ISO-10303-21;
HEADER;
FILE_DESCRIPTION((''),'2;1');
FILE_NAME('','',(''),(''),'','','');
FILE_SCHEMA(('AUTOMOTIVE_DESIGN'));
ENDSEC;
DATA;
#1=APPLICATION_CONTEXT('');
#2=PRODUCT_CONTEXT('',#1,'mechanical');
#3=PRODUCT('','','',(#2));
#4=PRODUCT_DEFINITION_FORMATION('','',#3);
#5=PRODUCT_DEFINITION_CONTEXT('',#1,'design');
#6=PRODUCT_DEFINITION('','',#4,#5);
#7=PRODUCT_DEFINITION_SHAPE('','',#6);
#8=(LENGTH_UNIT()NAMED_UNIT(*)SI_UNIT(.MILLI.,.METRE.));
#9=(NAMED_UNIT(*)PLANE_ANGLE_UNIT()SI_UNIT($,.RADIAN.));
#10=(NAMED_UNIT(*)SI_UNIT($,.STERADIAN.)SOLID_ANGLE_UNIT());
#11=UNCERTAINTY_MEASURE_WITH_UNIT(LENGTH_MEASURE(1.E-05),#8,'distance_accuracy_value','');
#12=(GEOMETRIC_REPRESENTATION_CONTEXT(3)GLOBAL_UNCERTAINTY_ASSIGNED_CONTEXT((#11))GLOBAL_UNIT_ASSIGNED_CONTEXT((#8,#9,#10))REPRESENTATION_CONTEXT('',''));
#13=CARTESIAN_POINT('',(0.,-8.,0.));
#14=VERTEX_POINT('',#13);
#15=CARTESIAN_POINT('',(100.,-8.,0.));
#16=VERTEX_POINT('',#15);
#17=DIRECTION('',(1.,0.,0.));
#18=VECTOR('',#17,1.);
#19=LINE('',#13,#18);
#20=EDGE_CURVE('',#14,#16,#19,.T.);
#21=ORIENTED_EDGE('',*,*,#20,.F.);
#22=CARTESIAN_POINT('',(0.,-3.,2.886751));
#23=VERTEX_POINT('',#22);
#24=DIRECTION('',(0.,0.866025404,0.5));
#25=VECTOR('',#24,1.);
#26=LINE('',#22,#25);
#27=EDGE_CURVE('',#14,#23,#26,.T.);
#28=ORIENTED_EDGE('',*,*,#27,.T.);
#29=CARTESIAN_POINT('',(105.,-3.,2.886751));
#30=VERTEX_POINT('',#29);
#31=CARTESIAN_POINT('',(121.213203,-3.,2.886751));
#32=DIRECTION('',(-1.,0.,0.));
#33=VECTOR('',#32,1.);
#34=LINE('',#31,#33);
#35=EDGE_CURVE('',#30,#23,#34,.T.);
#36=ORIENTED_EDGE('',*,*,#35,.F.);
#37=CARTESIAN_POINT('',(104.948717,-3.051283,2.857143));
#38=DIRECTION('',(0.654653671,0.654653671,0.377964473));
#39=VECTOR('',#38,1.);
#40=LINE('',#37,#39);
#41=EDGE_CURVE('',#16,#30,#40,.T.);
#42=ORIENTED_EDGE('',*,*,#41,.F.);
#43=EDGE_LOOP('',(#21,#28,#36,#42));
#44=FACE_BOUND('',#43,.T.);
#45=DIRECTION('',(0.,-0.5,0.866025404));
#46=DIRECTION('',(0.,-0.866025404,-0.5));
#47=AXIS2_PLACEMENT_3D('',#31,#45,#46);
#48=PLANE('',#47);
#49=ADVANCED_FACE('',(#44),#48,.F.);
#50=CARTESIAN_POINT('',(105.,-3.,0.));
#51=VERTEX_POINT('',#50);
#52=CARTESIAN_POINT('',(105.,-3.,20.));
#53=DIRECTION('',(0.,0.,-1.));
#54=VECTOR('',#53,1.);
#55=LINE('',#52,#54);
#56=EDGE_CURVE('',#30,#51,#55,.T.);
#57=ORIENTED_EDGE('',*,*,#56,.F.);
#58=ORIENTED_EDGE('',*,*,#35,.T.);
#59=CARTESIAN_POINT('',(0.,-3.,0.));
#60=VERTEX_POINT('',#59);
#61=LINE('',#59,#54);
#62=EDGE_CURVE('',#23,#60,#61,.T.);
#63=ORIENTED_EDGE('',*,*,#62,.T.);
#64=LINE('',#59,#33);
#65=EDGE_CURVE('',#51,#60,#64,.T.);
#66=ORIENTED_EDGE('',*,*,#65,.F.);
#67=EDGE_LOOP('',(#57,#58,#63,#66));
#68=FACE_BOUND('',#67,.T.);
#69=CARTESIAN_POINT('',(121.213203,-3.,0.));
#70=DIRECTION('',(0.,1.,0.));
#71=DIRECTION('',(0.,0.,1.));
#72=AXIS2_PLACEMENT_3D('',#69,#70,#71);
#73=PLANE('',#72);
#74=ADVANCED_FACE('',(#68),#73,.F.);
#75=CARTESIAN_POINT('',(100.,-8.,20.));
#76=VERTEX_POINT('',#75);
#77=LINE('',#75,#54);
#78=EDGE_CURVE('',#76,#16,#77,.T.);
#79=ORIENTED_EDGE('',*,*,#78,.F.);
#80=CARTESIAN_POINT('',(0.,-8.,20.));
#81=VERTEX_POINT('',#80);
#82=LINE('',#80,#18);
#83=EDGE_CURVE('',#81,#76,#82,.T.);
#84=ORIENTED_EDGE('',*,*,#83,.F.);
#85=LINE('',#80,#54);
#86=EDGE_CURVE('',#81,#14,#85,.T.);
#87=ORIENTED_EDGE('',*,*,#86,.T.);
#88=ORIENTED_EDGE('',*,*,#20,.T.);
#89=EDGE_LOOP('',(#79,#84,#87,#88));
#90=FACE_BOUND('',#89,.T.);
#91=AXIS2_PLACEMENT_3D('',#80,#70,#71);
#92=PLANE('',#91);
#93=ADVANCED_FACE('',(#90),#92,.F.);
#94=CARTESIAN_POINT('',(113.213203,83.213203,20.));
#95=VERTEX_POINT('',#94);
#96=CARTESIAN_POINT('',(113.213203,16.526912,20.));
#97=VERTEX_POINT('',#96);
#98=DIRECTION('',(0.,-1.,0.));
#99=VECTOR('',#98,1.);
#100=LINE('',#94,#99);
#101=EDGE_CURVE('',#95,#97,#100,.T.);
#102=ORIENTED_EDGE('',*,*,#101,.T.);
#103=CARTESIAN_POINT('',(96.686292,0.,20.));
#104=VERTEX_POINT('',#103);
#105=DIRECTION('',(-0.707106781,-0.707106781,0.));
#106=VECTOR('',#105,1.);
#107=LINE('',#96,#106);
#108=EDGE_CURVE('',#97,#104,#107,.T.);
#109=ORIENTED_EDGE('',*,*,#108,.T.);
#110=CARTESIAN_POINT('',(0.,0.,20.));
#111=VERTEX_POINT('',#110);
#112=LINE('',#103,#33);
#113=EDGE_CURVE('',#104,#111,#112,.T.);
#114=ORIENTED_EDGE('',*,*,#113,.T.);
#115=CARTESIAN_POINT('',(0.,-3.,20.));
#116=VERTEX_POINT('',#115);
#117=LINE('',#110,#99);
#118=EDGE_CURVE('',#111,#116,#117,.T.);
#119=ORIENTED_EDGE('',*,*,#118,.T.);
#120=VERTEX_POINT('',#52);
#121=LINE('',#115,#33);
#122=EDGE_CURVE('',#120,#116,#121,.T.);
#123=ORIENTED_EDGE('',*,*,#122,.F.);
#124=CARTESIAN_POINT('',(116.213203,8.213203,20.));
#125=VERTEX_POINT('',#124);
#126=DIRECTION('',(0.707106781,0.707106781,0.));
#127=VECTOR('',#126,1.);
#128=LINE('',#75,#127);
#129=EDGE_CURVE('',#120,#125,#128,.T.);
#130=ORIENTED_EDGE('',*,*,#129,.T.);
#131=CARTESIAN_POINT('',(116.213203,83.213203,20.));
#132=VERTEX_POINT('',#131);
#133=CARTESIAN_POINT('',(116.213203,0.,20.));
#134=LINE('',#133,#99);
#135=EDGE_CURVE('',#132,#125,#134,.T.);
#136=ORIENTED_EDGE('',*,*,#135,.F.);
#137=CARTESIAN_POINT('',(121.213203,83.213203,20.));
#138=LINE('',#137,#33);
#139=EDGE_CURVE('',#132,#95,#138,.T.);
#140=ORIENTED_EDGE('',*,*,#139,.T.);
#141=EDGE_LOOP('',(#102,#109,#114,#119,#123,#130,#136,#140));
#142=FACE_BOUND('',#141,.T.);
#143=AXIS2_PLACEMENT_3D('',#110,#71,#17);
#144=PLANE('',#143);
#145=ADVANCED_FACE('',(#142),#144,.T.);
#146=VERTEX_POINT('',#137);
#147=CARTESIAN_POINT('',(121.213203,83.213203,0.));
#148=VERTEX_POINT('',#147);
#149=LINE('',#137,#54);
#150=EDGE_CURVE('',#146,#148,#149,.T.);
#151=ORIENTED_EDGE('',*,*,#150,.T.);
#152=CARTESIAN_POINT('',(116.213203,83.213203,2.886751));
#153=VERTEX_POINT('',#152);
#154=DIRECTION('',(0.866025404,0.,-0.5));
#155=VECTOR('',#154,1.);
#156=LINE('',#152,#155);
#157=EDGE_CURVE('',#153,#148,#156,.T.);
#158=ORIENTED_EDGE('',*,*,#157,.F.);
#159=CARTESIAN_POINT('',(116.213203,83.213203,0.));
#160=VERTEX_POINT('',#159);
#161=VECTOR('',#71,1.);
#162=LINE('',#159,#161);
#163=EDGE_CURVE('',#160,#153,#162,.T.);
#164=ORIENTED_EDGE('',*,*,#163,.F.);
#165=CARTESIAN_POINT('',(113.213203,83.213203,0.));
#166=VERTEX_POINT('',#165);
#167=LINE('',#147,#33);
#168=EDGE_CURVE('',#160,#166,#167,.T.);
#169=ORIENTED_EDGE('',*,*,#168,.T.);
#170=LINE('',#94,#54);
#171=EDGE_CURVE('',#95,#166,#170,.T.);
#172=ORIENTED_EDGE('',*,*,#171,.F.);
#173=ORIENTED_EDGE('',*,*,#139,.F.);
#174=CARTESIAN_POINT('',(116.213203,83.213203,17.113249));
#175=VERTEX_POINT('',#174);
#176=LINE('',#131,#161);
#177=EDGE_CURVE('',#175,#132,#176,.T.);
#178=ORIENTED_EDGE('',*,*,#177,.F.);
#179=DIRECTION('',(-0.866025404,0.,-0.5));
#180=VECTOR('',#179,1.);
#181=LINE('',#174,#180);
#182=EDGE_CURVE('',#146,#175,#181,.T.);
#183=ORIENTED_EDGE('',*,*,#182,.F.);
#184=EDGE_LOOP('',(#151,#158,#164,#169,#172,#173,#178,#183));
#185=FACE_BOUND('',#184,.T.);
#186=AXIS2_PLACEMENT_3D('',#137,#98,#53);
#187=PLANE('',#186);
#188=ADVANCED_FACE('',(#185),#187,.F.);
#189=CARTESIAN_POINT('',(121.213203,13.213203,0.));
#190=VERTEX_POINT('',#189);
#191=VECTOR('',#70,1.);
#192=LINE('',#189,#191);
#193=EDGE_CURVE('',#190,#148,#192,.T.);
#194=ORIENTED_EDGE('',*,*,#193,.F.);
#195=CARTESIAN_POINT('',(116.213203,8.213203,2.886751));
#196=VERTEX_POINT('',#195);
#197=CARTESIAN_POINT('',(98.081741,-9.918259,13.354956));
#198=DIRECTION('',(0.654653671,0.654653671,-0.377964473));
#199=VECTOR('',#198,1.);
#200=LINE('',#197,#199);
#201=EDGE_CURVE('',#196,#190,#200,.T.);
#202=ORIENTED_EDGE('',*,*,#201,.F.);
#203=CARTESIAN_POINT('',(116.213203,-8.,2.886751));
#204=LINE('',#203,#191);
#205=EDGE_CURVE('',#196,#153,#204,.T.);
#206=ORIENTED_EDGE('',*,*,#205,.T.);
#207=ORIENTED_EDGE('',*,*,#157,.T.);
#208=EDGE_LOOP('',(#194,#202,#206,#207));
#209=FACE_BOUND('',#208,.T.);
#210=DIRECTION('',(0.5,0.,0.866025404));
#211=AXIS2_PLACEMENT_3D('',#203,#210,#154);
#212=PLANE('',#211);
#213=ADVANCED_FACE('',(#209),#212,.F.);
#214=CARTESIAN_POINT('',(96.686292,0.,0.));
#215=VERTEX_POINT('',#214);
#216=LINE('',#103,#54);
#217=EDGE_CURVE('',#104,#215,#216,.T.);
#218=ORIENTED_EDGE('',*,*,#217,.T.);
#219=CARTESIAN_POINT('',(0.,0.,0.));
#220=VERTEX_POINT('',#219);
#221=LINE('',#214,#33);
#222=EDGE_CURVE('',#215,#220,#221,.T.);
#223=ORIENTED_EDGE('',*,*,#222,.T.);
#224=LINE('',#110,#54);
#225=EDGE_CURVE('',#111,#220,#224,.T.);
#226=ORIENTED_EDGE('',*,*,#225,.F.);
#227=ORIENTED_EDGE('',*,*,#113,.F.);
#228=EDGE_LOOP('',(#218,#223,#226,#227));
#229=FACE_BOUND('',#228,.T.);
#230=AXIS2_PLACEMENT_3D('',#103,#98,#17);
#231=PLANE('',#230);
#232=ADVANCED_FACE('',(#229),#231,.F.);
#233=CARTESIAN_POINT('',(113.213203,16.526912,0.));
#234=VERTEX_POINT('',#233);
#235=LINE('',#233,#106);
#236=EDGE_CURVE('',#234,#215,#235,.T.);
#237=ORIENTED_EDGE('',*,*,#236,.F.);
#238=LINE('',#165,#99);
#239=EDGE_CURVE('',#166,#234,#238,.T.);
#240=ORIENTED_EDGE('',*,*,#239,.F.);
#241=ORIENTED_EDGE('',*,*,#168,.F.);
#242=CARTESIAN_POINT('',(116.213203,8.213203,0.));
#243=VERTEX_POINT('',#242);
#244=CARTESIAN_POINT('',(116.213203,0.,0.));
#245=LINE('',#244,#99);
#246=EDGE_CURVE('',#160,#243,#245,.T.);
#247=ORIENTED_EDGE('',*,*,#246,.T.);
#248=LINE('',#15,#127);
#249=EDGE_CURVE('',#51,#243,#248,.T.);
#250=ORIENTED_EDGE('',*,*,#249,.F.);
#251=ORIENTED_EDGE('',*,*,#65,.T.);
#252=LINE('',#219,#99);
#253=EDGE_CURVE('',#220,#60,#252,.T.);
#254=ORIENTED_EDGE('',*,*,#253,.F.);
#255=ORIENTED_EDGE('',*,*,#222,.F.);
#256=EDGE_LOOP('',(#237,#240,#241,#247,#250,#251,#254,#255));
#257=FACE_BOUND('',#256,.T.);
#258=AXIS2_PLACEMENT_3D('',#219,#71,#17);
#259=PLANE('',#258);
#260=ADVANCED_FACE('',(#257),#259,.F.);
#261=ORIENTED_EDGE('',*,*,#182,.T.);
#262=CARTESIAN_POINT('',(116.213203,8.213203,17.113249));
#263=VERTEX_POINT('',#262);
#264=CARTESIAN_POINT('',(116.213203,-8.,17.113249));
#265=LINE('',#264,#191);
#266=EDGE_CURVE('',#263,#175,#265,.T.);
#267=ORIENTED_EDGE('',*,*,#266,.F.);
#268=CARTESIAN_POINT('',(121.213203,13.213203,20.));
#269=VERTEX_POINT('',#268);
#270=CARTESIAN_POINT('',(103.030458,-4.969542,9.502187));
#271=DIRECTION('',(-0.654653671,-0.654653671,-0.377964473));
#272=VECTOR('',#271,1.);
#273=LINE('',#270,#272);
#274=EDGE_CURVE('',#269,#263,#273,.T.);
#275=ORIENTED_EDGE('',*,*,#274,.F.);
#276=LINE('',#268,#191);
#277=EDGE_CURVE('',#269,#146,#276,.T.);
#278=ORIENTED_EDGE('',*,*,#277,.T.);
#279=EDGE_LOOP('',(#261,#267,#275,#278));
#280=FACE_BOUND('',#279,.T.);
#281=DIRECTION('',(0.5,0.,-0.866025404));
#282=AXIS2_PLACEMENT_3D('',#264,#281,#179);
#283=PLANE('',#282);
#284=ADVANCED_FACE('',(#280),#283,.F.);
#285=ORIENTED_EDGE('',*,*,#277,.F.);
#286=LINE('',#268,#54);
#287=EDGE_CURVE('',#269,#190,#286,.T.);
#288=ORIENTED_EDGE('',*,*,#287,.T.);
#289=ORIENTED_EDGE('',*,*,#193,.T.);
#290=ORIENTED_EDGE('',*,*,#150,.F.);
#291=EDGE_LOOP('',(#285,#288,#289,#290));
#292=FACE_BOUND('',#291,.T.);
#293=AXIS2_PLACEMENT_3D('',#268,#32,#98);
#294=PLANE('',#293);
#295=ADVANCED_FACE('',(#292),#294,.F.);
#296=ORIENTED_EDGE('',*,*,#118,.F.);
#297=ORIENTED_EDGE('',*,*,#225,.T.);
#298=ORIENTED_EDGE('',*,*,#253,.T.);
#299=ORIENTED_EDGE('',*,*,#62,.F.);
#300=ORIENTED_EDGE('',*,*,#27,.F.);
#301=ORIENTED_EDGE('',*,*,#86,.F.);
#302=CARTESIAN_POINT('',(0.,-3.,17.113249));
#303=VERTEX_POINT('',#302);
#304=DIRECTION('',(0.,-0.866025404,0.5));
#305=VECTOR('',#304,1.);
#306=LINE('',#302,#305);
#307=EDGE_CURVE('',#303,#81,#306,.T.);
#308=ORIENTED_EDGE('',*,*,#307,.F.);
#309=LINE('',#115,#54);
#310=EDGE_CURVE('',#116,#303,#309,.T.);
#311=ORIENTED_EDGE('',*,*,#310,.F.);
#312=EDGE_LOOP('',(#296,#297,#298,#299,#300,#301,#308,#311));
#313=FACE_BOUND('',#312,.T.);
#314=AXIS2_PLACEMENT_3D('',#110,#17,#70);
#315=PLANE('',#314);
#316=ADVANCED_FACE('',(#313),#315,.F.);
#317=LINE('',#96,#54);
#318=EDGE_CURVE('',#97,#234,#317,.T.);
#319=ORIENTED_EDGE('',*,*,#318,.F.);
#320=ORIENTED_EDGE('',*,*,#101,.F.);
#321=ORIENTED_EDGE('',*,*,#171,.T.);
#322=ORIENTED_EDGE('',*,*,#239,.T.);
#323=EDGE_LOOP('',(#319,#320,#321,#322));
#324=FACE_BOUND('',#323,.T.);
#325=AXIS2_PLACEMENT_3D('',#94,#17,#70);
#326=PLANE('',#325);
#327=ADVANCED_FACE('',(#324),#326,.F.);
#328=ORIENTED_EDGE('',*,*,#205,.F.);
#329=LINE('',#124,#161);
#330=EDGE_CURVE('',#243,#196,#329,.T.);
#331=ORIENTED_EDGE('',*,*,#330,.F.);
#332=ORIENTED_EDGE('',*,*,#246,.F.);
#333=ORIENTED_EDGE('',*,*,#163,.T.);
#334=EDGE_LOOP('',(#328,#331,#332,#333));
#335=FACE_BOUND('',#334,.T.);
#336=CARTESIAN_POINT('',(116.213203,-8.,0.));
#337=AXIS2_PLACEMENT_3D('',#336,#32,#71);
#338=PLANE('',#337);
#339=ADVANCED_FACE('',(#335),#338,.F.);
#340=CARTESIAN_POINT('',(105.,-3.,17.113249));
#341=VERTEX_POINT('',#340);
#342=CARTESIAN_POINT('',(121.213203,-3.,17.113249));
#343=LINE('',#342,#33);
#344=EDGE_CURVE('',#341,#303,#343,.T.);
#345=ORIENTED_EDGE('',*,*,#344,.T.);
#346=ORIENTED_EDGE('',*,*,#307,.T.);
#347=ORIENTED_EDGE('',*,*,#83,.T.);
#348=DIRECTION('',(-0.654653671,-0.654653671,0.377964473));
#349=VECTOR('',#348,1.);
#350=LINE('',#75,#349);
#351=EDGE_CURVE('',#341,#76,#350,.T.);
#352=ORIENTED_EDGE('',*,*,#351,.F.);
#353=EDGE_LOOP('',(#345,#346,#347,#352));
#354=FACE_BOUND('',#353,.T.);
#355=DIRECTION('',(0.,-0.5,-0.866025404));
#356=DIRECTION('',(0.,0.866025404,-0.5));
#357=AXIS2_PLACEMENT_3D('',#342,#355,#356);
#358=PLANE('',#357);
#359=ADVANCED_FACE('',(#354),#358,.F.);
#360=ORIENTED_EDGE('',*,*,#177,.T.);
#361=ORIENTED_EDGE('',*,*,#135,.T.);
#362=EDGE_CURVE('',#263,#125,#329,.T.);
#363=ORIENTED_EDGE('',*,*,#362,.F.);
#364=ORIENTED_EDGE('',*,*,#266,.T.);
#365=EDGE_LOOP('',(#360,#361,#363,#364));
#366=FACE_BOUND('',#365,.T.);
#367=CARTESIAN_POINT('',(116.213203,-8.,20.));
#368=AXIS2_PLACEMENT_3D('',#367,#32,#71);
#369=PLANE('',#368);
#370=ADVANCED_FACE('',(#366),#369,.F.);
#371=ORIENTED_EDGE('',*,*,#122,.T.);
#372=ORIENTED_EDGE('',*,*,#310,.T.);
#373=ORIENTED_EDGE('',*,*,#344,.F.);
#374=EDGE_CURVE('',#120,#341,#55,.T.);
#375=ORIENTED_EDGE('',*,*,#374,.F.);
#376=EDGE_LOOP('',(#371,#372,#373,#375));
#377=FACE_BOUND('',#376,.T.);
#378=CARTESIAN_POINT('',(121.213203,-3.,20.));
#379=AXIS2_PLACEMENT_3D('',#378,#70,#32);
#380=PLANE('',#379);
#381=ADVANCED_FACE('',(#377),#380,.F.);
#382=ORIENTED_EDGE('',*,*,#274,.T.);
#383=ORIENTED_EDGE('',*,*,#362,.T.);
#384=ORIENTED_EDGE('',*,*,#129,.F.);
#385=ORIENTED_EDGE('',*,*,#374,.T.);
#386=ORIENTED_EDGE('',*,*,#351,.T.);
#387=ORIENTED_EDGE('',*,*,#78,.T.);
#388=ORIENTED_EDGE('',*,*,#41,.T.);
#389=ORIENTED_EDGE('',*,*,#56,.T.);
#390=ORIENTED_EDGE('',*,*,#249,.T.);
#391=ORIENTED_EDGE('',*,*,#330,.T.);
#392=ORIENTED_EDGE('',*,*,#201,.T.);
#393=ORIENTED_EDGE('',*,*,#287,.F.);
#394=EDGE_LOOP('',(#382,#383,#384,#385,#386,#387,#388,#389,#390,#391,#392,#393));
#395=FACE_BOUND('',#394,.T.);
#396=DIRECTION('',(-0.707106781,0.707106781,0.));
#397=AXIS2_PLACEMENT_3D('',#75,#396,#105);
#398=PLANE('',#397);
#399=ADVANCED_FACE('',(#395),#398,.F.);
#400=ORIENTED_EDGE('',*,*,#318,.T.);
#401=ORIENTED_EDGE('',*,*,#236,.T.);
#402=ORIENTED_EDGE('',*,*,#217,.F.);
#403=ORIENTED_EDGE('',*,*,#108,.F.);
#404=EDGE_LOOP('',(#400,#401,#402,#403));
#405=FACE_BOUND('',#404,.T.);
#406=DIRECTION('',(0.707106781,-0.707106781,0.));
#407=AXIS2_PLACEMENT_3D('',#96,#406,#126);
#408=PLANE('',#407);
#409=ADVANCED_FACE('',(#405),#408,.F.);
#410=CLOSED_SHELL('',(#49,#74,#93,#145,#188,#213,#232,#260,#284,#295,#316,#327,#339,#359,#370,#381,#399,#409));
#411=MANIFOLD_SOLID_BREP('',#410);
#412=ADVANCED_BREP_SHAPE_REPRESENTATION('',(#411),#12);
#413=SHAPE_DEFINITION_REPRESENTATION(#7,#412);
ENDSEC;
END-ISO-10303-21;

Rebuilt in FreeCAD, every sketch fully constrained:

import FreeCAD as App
import Part
import Sketcher
Q = App.Units.Quantity


def add_polygon(sketch, points):
    """Adds a closed chain of lines whose ends are joined by coincident constraints."""
    first, n = sketch.GeometryCount, len(points)
    for a, b in zip(points, points[1:] + points[:1]):
        sketch.addGeometry(Part.LineSegment(App.Vector(*a, 0), App.Vector(*b, 0)), False)
    for i in range(n):
        sketch.addConstraint(Sketcher.Constraint("Coincident", first + i, 2, first + (i + 1) % n, 1))

doc = App.newDocument("Part")
body = doc.addObject("PartDesign::Body", "Body")

# Sketch on XY plane
sketch1 = doc.addObject("Sketcher::SketchObject", "Sketch")
body.addObject(sketch1)
sketch1.AttachmentSupport = (doc.XY_Plane, [""])
sketch1.MapMode = "FlatFace"
add_polygon(sketch1, [(0, 0), (0, -8), (100, -8), (121, 13), (121, 83), (113, 83), (113, 17), (97, 0)])  # lines 0-7
sketch1.addConstraint(Sketcher.Constraint("Vertical", 0))
sketch1.addConstraint(Sketcher.Constraint("Horizontal", 1))
sketch1.addConstraint(Sketcher.Constraint("Vertical", 3))
sketch1.addConstraint(Sketcher.Constraint("Horizontal", 4))
sketch1.addConstraint(Sketcher.Constraint("Vertical", 5))
sketch1.addConstraint(Sketcher.Constraint("Horizontal", 7))
sketch1.addConstraint(Sketcher.Constraint("Coincident", 7, 2, -1, 1))
sketch1.addConstraint(Sketcher.Constraint("Parallel", 2, 6))
sketch1.addConstraint(Sketcher.Constraint("Equal", 4, 0))
sketch1.addConstraint(Sketcher.Constraint("DistanceX", 1, 1, 1, 2, Q("100 mm")))
sketch1.addConstraint(Sketcher.Constraint("DistanceX", 4, 2, 4, 1, Q("8 mm")))
sketch1.addConstraint(Sketcher.Constraint("DistanceY", 3, 1, 3, 2, Q("70 mm")))
sketch1.addConstraint(Sketcher.Constraint("Angle", 2, Q("45 deg")))
sketch1.addConstraint(Sketcher.Constraint("Distance", 2, Q("30 mm")))
sketch1.addConstraint(Sketcher.Constraint("DistanceX", 7, 2, 7, 1, Q("96.686292 mm")))
pad1 = doc.addObject("PartDesign::Pad", "Pad")
body.addObject(pad1)
pad1.Profile = sketch1
pad1.Length = 20

# Sketch on YZ plane
sketch2 = doc.addObject("Sketcher::SketchObject", "Sketch001")
body.addObject(sketch2)
sketch2.AttachmentSupport = (doc.YZ_Plane, [""])
sketch2.MapMode = "FlatFace"
add_polygon(sketch2, [(-3, 2.9), (-3, 0), (-8, 0)])  # lines 0-2
add_polygon(sketch2, [(-8, 20), (-3, 20), (-3, 17.1)])  # lines 3-5
sketch2.addConstraint(Sketcher.Constraint("Vertical", 0))
sketch2.addConstraint(Sketcher.Constraint("Horizontal", 1))
sketch2.addConstraint(Sketcher.Constraint("Horizontal", 3))
sketch2.addConstraint(Sketcher.Constraint("Vertical", 4))
sketch2.addConstraint(Sketcher.Constraint("PointOnObject", 0, 2, -1))
sketch2.addConstraint(Sketcher.Constraint("Vertical", 2, 2, 3, 2))
sketch2.addConstraint(Sketcher.Constraint("Vertical", 1, 2, 5, 2))
sketch2.addConstraint(Sketcher.Constraint("Equal", 0, 4))
sketch2.addConstraint(Sketcher.Constraint("DistanceX", 1, 2, 1, 1, Q("5 mm")))
sketch2.addConstraint(Sketcher.Constraint("Angle", 2, Q("30 deg")))
sketch2.addConstraint(Sketcher.Constraint("DistanceX", 0, 2, -1, 1, Q("3 mm")))
sketch2.addConstraint(Sketcher.Constraint("DistanceY", -1, 1, 3, 2, Q("20 mm")))
pocket1 = doc.addObject("PartDesign::Pocket", "Pocket")
body.addObject(pocket1)
pocket1.Profile = sketch2
pocket1.Type = "ThroughAll"
pocket1.Reversed = True

# Sketch on XZ plane
sketch3 = doc.addObject("Sketcher::SketchObject", "Sketch002")
body.addObject(sketch3)
sketch3.AttachmentSupport = (doc.XZ_Plane, [""])
sketch3.MapMode = "FlatFace"
sketch3.AttachmentOffset = App.Placement(App.Vector(0, 0, -83.213203), App.Rotation())
add_polygon(sketch3, [(116.2, 17.1), (116.2, 20), (121.2, 20)])  # lines 0-2
add_polygon(sketch3, [(121.2, 0), (116.2, 0), (116.2, 2.9)])  # lines 3-5
sketch3.addConstraint(Sketcher.Constraint("Vertical", 0))
sketch3.addConstraint(Sketcher.Constraint("Horizontal", 1))
sketch3.addConstraint(Sketcher.Constraint("Horizontal", 3))
sketch3.addConstraint(Sketcher.Constraint("Vertical", 4))
sketch3.addConstraint(Sketcher.Constraint("PointOnObject", 3, 2, -1))
sketch3.addConstraint(Sketcher.Constraint("Vertical", 2, 2, 3, 2))
sketch3.addConstraint(Sketcher.Constraint("Vertical", 1, 2, 5, 2))
sketch3.addConstraint(Sketcher.Constraint("Equal", 0, 4))
sketch3.addConstraint(Sketcher.Constraint("DistanceX", 1, 1, 1, 2, Q("5 mm")))
sketch3.addConstraint(Sketcher.Constraint("Angle", 2, Q("-150 deg")))
sketch3.addConstraint(Sketcher.Constraint("DistanceY", -1, 1, 0, 2, Q("20 mm")))
sketch3.addConstraint(Sketcher.Constraint("DistanceX", -1, 1, 0, 2, Q("116.213203 mm")))
pocket2 = doc.addObject("PartDesign::Pocket", "Pocket001")
body.addObject(pocket2)
pocket2.Profile = sketch3
pocket2.Type = "ThroughAll"
pocket2.Reversed = True

doc.recompute()
